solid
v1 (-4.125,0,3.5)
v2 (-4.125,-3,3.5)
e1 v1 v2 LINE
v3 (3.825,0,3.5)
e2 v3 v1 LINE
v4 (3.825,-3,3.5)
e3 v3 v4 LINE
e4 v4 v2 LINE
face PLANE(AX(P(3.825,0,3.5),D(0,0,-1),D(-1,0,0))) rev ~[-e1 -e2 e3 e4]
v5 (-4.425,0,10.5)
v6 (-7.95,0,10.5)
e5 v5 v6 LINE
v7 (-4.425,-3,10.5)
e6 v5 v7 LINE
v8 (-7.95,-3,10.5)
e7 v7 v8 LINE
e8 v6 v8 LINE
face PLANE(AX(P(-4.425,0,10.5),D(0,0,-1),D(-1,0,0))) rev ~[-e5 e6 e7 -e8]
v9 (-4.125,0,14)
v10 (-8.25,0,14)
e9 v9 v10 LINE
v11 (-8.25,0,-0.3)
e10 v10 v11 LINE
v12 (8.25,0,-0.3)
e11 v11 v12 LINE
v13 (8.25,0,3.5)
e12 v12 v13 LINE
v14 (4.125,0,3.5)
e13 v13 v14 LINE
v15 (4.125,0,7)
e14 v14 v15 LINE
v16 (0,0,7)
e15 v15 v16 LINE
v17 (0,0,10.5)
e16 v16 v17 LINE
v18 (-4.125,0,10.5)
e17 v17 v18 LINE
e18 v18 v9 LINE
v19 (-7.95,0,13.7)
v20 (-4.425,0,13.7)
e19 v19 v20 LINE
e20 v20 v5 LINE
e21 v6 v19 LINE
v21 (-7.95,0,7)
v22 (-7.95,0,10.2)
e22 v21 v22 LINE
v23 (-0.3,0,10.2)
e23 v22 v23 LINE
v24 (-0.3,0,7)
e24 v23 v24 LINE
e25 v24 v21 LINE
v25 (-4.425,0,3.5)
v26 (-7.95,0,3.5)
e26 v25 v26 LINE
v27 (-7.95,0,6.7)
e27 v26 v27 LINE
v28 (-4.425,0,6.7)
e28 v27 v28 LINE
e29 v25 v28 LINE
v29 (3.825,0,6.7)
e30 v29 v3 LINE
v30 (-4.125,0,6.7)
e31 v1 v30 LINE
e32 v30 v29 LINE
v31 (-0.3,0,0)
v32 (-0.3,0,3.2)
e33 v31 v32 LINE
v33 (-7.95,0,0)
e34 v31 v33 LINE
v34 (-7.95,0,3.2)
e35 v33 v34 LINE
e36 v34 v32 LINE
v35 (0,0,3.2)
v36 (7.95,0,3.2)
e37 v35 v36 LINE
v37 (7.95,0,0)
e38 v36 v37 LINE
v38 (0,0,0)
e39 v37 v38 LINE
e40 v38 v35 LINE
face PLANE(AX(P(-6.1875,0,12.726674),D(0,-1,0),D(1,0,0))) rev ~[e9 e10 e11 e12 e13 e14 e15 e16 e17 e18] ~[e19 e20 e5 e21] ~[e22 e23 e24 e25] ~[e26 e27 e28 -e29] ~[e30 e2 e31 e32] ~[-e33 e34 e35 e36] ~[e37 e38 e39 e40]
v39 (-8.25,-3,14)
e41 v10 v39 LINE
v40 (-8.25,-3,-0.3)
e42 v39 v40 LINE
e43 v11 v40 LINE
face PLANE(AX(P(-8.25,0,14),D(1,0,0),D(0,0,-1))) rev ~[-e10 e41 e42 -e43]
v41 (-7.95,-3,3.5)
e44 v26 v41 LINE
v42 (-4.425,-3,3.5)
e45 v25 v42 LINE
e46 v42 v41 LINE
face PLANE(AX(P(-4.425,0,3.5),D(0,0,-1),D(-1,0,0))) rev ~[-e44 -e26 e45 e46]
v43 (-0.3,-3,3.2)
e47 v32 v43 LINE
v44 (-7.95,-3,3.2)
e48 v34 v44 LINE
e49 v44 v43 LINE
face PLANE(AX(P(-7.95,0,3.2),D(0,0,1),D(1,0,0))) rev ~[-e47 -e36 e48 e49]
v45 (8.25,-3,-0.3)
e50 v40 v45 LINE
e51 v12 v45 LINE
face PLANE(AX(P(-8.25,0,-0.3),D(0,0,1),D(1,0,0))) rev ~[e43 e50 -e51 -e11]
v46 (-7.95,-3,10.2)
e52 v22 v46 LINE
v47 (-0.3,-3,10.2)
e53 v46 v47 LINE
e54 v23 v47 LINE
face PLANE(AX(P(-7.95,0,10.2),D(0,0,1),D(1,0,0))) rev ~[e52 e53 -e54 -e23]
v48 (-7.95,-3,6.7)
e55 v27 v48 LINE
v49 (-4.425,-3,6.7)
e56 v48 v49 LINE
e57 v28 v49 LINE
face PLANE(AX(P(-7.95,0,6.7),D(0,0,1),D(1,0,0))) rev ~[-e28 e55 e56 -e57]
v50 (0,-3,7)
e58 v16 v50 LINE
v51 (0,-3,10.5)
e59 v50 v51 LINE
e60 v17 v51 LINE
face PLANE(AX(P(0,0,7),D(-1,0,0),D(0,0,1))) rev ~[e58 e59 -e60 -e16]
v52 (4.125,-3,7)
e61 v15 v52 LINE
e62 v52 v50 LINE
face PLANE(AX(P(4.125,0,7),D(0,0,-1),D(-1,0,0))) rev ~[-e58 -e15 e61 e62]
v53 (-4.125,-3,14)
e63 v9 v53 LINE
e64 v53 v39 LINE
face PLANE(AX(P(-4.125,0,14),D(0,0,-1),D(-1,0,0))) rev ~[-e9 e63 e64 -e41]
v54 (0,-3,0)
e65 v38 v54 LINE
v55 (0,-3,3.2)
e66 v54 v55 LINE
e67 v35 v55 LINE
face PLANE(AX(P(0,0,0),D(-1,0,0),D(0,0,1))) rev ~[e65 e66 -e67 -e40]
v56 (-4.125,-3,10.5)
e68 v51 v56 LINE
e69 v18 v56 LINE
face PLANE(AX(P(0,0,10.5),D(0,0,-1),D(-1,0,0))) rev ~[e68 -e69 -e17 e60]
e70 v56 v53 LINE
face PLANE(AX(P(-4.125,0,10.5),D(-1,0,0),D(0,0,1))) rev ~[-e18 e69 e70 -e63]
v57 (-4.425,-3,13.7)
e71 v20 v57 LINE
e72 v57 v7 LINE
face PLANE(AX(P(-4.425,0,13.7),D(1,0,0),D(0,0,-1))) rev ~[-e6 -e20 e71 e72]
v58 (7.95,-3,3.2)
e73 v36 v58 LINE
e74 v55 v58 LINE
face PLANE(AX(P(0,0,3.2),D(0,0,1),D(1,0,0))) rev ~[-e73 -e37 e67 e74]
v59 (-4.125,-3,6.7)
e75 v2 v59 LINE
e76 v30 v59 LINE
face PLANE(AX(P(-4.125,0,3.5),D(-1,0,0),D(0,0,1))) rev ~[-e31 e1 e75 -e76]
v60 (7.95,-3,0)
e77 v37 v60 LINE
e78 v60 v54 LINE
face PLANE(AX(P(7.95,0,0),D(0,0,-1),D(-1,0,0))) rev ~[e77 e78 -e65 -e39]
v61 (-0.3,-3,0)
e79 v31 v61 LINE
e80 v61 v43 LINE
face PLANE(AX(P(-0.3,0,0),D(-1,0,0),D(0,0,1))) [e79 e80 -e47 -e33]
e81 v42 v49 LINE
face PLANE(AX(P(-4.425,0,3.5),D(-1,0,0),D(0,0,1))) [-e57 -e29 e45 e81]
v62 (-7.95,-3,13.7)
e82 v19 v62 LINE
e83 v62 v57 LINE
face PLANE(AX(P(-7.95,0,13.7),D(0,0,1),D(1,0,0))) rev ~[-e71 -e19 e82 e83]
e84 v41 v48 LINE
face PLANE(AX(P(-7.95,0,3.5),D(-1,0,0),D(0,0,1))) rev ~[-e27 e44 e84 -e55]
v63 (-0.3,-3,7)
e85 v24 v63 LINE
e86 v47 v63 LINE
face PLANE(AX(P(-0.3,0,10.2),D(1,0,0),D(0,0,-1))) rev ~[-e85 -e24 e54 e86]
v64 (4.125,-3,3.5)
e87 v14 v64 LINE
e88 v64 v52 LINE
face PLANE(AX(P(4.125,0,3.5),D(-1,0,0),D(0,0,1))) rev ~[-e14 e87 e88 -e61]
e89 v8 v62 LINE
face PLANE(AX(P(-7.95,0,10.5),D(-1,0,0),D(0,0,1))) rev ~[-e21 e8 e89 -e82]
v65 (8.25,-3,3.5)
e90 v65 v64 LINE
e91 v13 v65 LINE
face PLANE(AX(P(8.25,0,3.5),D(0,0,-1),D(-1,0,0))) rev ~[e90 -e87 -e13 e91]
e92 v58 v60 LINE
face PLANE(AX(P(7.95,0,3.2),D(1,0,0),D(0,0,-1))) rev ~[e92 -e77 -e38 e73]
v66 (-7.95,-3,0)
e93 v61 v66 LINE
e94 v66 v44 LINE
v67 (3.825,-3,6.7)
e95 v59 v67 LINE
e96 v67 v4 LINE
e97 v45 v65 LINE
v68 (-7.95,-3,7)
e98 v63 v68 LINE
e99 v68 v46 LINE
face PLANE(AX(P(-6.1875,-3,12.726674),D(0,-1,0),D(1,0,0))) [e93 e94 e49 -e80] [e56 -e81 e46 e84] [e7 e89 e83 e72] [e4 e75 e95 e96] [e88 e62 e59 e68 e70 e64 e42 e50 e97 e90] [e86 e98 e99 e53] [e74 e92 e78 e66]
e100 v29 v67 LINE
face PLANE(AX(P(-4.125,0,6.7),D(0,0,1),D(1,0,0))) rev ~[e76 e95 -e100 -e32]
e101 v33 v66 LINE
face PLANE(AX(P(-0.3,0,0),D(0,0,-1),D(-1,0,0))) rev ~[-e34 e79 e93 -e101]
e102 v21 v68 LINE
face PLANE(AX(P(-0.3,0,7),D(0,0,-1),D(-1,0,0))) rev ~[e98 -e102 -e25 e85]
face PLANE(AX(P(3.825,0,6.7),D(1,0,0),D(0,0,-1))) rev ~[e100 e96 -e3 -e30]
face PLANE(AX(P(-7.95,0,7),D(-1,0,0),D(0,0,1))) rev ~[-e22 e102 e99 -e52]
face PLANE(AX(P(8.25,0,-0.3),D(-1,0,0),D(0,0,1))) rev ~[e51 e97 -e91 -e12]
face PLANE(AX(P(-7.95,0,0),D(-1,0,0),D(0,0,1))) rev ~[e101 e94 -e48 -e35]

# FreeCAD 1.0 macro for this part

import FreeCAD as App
import Part
import Sketcher


def add_polygon(sketch, points):
    """Adds a closed chain of lines whose ends are joined by coincident constraints."""
    first, n = sketch.GeometryCount, len(points)
    for a, b in zip(points, points[1:] + points[:1]):
        sketch.addGeometry(Part.LineSegment(App.Vector(*a, 0), App.Vector(*b, 0)), False)
    for i in range(n):
        sketch.addConstraint(Sketcher.Constraint("Coincident", first + i, 2, first + (i + 1) % n, 1))

doc = App.newDocument("Part")
body = doc.addObject("PartDesign::Body", "Body")

# Sketch on XZ plane
sketch1 = body.newObject("Sketcher::SketchObject", "Sketch")
sketch1.AttachmentSupport = (doc.getObject("XZ_Plane"), [""])
sketch1.MapMode = "FlatFace"
add_polygon(sketch1, [(-4.1, 10.5), (-4.1, 14), (-8.2, 14), (-8.2, -0.3), (8.2, -0.3), (8.2, 3.5), (4.1, 3.5), (4.1, 7), (0, 7), (0, 10.5)])  # lines 0-9
add_polygon(sketch1, [(-8, 0), (-8, 3.2), (-0.3, 3.2), (-0.3, 0)])  # lines 10-13
add_polygon(sketch1, [(0, 0), (0, 3.2), (8, 3.2), (8, 0)])  # lines 14-17
add_polygon(sketch1, [(-8, 3.5), (-8, 6.7), (-4.4, 6.7), (-4.4, 3.5)])  # lines 18-21
add_polygon(sketch1, [(-4.1, 3.5), (-4.1, 6.7), (3.8, 6.7), (3.8, 3.5)])  # lines 22-25
add_polygon(sketch1, [(-8, 7), (-8, 10.2), (-0.3, 10.2), (-0.3, 7)])  # lines 26-29
add_polygon(sketch1, [(-8, 10.5), (-8, 13.7), (-4.4, 13.7), (-4.4, 10.5)])  # lines 30-33
sketch1.addConstraint([
    Sketcher.Constraint("Vertical", 0),
    Sketcher.Constraint("Horizontal", 1),
    Sketcher.Constraint("Vertical", 2),
    Sketcher.Constraint("Horizontal", 3),
    Sketcher.Constraint("Vertical", 4),
    Sketcher.Constraint("Horizontal", 5),
    Sketcher.Constraint("Vertical", 6),
    Sketcher.Constraint("Horizontal", 7),
    Sketcher.Constraint("Vertical", 8),
    Sketcher.Constraint("Horizontal", 9),
    Sketcher.Constraint("Vertical", 10),
    Sketcher.Constraint("Horizontal", 11),
    Sketcher.Constraint("Vertical", 12),
    Sketcher.Constraint("Horizontal", 13),
    Sketcher.Constraint("Vertical", 14),
    Sketcher.Constraint("Horizontal", 15),
    Sketcher.Constraint("Vertical", 16),
    Sketcher.Constraint("Horizontal", 17),
    Sketcher.Constraint("Vertical", 18),
    Sketcher.Constraint("Horizontal", 19),
    Sketcher.Constraint("Vertical", 20),
    Sketcher.Constraint("Horizontal", 21),
    Sketcher.Constraint("Vertical", 22),
    Sketcher.Constraint("Horizontal", 23),
    Sketcher.Constraint("Vertical", 24),
    Sketcher.Constraint("Horizontal", 25),
    Sketcher.Constraint("Vertical", 26),
    Sketcher.Constraint("Horizontal", 27),
    Sketcher.Constraint("Vertical", 28),
    Sketcher.Constraint("Horizontal", 29),
    Sketcher.Constraint("Vertical", 30),
    Sketcher.Constraint("Horizontal", 31),
    Sketcher.Constraint("Vertical", 32),
    Sketcher.Constraint("Horizontal", 33),
    Sketcher.Constraint("Coincident", 17, 2, -1, 1),
    Sketcher.Constraint("Symmetric", 13, 2, 16, 2, -1, 1),
    Sketcher.Constraint("Symmetric", 5, 2, 25, 2, -2),
    Sketcher.Constraint("PointOnObject", 7, 2, -2),
    Sketcher.Constraint("Horizontal", 11, 2, 14, 2),
    Sketcher.Constraint("Horizontal", 5, 2, 20, 2),
    Sketcher.Constraint("Horizontal", 19, 2, 22, 2),
    Sketcher.Constraint("Horizontal", 7, 2, 28, 2),
    Sketcher.Constraint("Horizontal", 9, 2, 32, 2),
    Sketcher.Constraint("Vertical", 13, 2, 18, 2),
    Sketcher.Constraint("Vertical", 9, 2, 22, 2),
    Sketcher.Constraint("Vertical", 21, 2, 26, 2),
    Sketcher.Constraint("Vertical", 12, 2, 27, 2),
    Sketcher.Constraint("Vertical", 29, 2, 30, 2),
    Sketcher.Constraint("Vertical", 20, 2, 31, 2),
    Sketcher.Constraint("Equal", 1, 5),
    Sketcher.Constraint("Equal", 5, 7),
    Sketcher.Constraint("Equal", 17, 23),
    Sketcher.Constraint("Equal", 0, 6),
    Sketcher.Constraint("Equal", 6, 8),
    Sketcher.Constraint("Equal", 16, 18),
    Sketcher.Constraint("Equal", 24, 26),
    Sketcher.Constraint("Equal", 28, 30),
    Sketcher.Constraint("DistanceX", 3, 1, 3, 2, 16.5),
    Sketcher.Constraint("DistanceY", 0, 1, 0, 2, 3.5),
    Sketcher.Constraint("DistanceY", 2, 2, 2, 1, 14.3),
    Sketcher.Constraint("DistanceY", 10, 1, 10, 2, 3.2),
    Sketcher.Constraint("DistanceY", -1, 1, 0, 2, 14.0),
    Sketcher.Constraint("DistanceX", 11, 1, 11, 2, 7.65),
    Sketcher.Constraint("DistanceX", 15, 1, 15, 2, 7.95),
    Sketcher.Constraint("DistanceX", 19, 2, 9, 2, 0.3),
])
pad1 = body.newObject("PartDesign::Pad", "Pad")
pad1.Profile = sketch1
pad1.Length = 3

doc.recompute()
